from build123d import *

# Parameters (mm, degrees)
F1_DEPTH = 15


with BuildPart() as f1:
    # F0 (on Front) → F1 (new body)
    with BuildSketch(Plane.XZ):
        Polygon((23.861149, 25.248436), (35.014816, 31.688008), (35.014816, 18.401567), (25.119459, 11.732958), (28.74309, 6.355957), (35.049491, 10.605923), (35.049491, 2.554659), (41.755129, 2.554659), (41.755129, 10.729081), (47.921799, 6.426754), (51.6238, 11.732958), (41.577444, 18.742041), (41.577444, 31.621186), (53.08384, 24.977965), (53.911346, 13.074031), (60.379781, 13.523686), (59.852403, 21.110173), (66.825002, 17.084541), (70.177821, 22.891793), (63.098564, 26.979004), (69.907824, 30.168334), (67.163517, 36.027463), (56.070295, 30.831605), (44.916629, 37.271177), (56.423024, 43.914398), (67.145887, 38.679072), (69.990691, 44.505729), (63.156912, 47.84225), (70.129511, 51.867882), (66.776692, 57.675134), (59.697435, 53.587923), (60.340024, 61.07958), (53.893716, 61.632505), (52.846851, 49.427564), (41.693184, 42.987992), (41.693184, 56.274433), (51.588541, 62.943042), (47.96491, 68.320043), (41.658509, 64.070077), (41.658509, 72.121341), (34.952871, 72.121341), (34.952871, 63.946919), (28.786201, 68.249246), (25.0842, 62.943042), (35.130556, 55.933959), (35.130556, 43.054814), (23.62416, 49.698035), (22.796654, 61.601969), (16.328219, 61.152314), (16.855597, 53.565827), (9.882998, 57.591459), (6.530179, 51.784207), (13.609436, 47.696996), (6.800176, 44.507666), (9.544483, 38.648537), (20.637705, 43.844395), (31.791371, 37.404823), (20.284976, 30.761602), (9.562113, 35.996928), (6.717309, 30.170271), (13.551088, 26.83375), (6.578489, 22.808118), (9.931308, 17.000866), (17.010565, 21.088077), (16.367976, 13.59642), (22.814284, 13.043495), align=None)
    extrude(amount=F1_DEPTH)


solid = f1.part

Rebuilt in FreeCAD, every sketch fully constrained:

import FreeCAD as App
import Part
import Sketcher

V = App.Vector
Q = App.Units.Quantity

doc = App.newDocument("Part")
body = doc.addObject("PartDesign::Body", "Body")

# Sketch on XZ plane
sketch1 = body.newObject("Sketcher::SketchObject", "Sketch")
sketch1.AttachmentSupport = (doc.getObject("XZ_Plane"), [""])
sketch1.MapMode = "FlatFace"
sketch1.addGeometry([
    Part.LineSegment(V(24, 25, 0), V(35, 32, 0)),  # 0
    Part.LineSegment(V(35, 32, 0), V(35, 18, 0)),  # 1
    Part.LineSegment(V(35, 18, 0), V(25, 12, 0)),  # 2
    Part.LineSegment(V(25, 12, 0), V(29, 6, 0)),  # 3
    Part.LineSegment(V(29, 6, 0), V(35, 11, 0)),  # 4
    Part.LineSegment(V(35, 11, 0), V(35, 3, 0)),  # 5
    Part.LineSegment(V(35, 3, 0), V(42, 3, 0)),  # 6
    Part.LineSegment(V(42, 3, 0), V(42, 11, 0)),  # 7
    Part.LineSegment(V(42, 11, 0), V(48, 6, 0)),  # 8
    Part.LineSegment(V(48, 6, 0), V(52, 12, 0)),  # 9
    Part.LineSegment(V(52, 12, 0), V(42, 19, 0)),  # 10
    Part.LineSegment(V(42, 19, 0), V(42, 32, 0)),  # 11
    Part.LineSegment(V(42, 32, 0), V(53, 25, 0)),  # 12
    Part.LineSegment(V(53, 25, 0), V(54, 13, 0)),  # 13
    Part.LineSegment(V(54, 13, 0), V(60, 14, 0)),  # 14
    Part.LineSegment(V(60, 14, 0), V(60, 21, 0)),  # 15
    Part.LineSegment(V(60, 21, 0), V(67, 17, 0)),  # 16
    Part.LineSegment(V(67, 17, 0), V(70, 23, 0)),  # 17
    Part.LineSegment(V(70, 23, 0), V(63, 27, 0)),  # 18
    Part.LineSegment(V(63, 27, 0), V(70, 30, 0)),  # 19
    Part.LineSegment(V(70, 30, 0), V(67, 36, 0)),  # 20
    Part.LineSegment(V(67, 36, 0), V(56, 31, 0)),  # 21
    Part.LineSegment(V(56, 31, 0), V(45, 37, 0)),  # 22
    Part.LineSegment(V(45, 37, 0), V(56, 44, 0)),  # 23
    Part.LineSegment(V(56, 44, 0), V(67, 39, 0)),  # 24
    Part.LineSegment(V(67, 39, 0), V(70, 45, 0)),  # 25
    Part.LineSegment(V(70, 45, 0), V(63, 48, 0)),  # 26
    Part.LineSegment(V(63, 48, 0), V(70, 52, 0)),  # 27
    Part.LineSegment(V(70, 52, 0), V(67, 58, 0)),  # 28
    Part.LineSegment(V(67, 58, 0), V(60, 54, 0)),  # 29
    Part.LineSegment(V(60, 54, 0), V(60, 61, 0)),  # 30
    Part.LineSegment(V(60, 61, 0), V(54, 62, 0)),  # 31
    Part.LineSegment(V(54, 62, 0), V(53, 49, 0)),  # 32
    Part.LineSegment(V(53, 49, 0), V(42, 43, 0)),  # 33
    Part.LineSegment(V(42, 43, 0), V(42, 56, 0)),  # 34
    Part.LineSegment(V(42, 56, 0), V(52, 63, 0)),  # 35
    Part.LineSegment(V(52, 63, 0), V(48, 68, 0)),  # 36
    Part.LineSegment(V(48, 68, 0), V(42, 64, 0)),  # 37
    Part.LineSegment(V(42, 64, 0), V(42, 72, 0)),  # 38
    Part.LineSegment(V(42, 72, 0), V(35, 72, 0)),  # 39
    Part.LineSegment(V(35, 72, 0), V(35, 64, 0)),  # 40
    Part.LineSegment(V(35, 64, 0), V(29, 68, 0)),  # 41
    Part.LineSegment(V(29, 68, 0), V(25, 63, 0)),  # 42
    Part.LineSegment(V(25, 63, 0), V(35, 56, 0)),  # 43
    Part.LineSegment(V(35, 56, 0), V(35, 43, 0)),  # 44
    Part.LineSegment(V(35, 43, 0), V(24, 50, 0)),  # 45
    Part.LineSegment(V(24, 50, 0), V(23, 62, 0)),  # 46
    Part.LineSegment(V(23, 62, 0), V(16, 61, 0)),  # 47
    Part.LineSegment(V(16, 61, 0), V(17, 54, 0)),  # 48
    Part.LineSegment(V(17, 54, 0), V(10, 58, 0)),  # 49
    Part.LineSegment(V(10, 58, 0), V(7, 52, 0)),  # 50
    Part.LineSegment(V(7, 52, 0), V(14, 48, 0)),  # 51
    Part.LineSegment(V(14, 48, 0), V(7, 45, 0)),  # 52
    Part.LineSegment(V(7, 45, 0), V(10, 39, 0)),  # 53
    Part.LineSegment(V(10, 39, 0), V(21, 44, 0)),  # 54
    Part.LineSegment(V(21, 44, 0), V(32, 37, 0)),  # 55
    Part.LineSegment(V(32, 37, 0), V(20, 31, 0)),  # 56
    Part.LineSegment(V(20, 31, 0), V(10, 36, 0)),  # 57
    Part.LineSegment(V(10, 36, 0), V(7, 30, 0)),  # 58
    Part.LineSegment(V(7, 30, 0), V(14, 27, 0)),  # 59
    Part.LineSegment(V(14, 27, 0), V(7, 23, 0)),  # 60
    Part.LineSegment(V(7, 23, 0), V(10, 17, 0)),  # 61
    Part.LineSegment(V(10, 17, 0), V(17, 21, 0)),  # 62
    Part.LineSegment(V(17, 21, 0), V(16, 14, 0)),  # 63
    Part.LineSegment(V(16, 14, 0), V(23, 13, 0)),  # 64
    Part.LineSegment(V(23, 13, 0), V(24, 25, 0)),  # 65
], False)
sketch1.addConstraint([
    Sketcher.Constraint("Coincident", 0, 2, 1, 1),
    Sketcher.Constraint("Coincident", 1, 2, 2, 1),
    Sketcher.Constraint("Coincident", 2, 2, 3, 1),
    Sketcher.Constraint("Coincident", 3, 2, 4, 1),
    Sketcher.Constraint("Coincident", 4, 2, 5, 1),
    Sketcher.Constraint("Coincident", 5, 2, 6, 1),
    Sketcher.Constraint("Coincident", 6, 2, 7, 1),
    Sketcher.Constraint("Coincident", 7, 2, 8, 1),
    Sketcher.Constraint("Coincident", 8, 2, 9, 1),
    Sketcher.Constraint("Coincident", 9, 2, 10, 1),
    Sketcher.Constraint("Coincident", 10, 2, 11, 1),
    Sketcher.Constraint("Coincident", 11, 2, 12, 1),
    Sketcher.Constraint("Coincident", 12, 2, 13, 1),
    Sketcher.Constraint("Coincident", 13, 2, 14, 1),
    Sketcher.Constraint("Coincident", 14, 2, 15, 1),
    Sketcher.Constraint("Coincident", 15, 2, 16, 1),
    Sketcher.Constraint("Coincident", 16, 2, 17, 1),
    Sketcher.Constraint("Coincident", 17, 2, 18, 1),
    Sketcher.Constraint("Coincident", 18, 2, 19, 1),
    Sketcher.Constraint("Coincident", 19, 2, 20, 1),
    Sketcher.Constraint("Coincident", 20, 2, 21, 1),
    Sketcher.Constraint("Coincident", 21, 2, 22, 1),
    Sketcher.Constraint("Coincident", 22, 2, 23, 1),
    Sketcher.Constraint("Coincident", 23, 2, 24, 1),
    Sketcher.Constraint("Coincident", 24, 2, 25, 1),
    Sketcher.Constraint("Coincident", 25, 2, 26, 1),
    Sketcher.Constraint("Coincident", 26, 2, 27, 1),
    Sketcher.Constraint("Coincident", 27, 2, 28, 1),
    Sketcher.Constraint("Coincident", 28, 2, 29, 1),
    Sketcher.Constraint("Coincident", 29, 2, 30, 1),
    Sketcher.Constraint("Coincident", 30, 2, 31, 1),
    Sketcher.Constraint("Coincident", 31, 2, 32, 1),
    Sketcher.Constraint("Coincident", 32, 2, 33, 1),
    Sketcher.Constraint("Coincident", 33, 2, 34, 1),
    Sketcher.Constraint("Coincident", 34, 2, 35, 1),
    Sketcher.Constraint("Coincident", 35, 2, 36, 1),
    Sketcher.Constraint("Coincident", 36, 2, 37, 1),
    Sketcher.Constraint("Coincident", 37, 2, 38, 1),
    Sketcher.Constraint("Coincident", 38, 2, 39, 1),
    Sketcher.Constraint("Coincident", 39, 2, 40, 1),
    Sketcher.Constraint("Coincident", 40, 2, 41, 1),
    Sketcher.Constraint("Coincident", 41, 2, 42, 1),
    Sketcher.Constraint("Coincident", 42, 2, 43, 1),
    Sketcher.Constraint("Coincident", 43, 2, 44, 1),
    Sketcher.Constraint("Coincident", 44, 2, 45, 1),
    Sketcher.Constraint("Coincident", 45, 2, 46, 1),
    Sketcher.Constraint("Coincident", 46, 2, 47, 1),
    Sketcher.Constraint("Coincident", 47, 2, 48, 1),
    Sketcher.Constraint("Coincident", 48, 2, 49, 1),
    Sketcher.Constraint("Coincident", 49, 2, 50, 1),
    Sketcher.Constraint("Coincident", 50, 2, 51, 1),
    Sketcher.Constraint("Coincident", 51, 2, 52, 1),
    Sketcher.Constraint("Coincident", 52, 2, 53, 1),
    Sketcher.Constraint("Coincident", 53, 2, 54, 1),
    Sketcher.Constraint("Coincident", 54, 2, 55, 1),
    Sketcher.Constraint("Coincident", 55, 2, 56, 1),
    Sketcher.Constraint("Coincident", 56, 2, 57, 1),
    Sketcher.Constraint("Coincident", 57, 2, 58, 1),
    Sketcher.Constraint("Coincident", 58, 2, 59, 1),
    Sketcher.Constraint("Coincident", 59, 2, 60, 1),
    Sketcher.Constraint("Coincident", 60, 2, 61, 1),
    Sketcher.Constraint("Coincident", 61, 2, 62, 1),
    Sketcher.Constraint("Coincident", 62, 2, 63, 1),
    Sketcher.Constraint("Coincident", 63, 2, 64, 1),
    Sketcher.Constraint("Coincident", 64, 2, 65, 1),
    Sketcher.Constraint("Coincident", 65, 2, 0, 1),
    Sketcher.Constraint("Vertical", 1),
    Sketcher.Constraint("Vertical", 5),
    Sketcher.Constraint("Horizontal", 6),
    Sketcher.Constraint("Vertical", 7),
    Sketcher.Constraint("Vertical", 11),
    Sketcher.Constraint("Vertical", 34),
    Sketcher.Constraint("Vertical", 38),
    Sketcher.Constraint("Horizontal", 39),
    Sketcher.Constraint("Vertical", 40),
    Sketcher.Constraint("Vertical", 44),
    Sketcher.Constraint("Perpendicular", 2, 3),
    Sketcher.Constraint("Perpendicular", 3, 4),
    Sketcher.Constraint("Perpendicular", 8, 9),
    Sketcher.Constraint("Perpendicular", 9, 10),
    Sketcher.Constraint("Perpendicular", 13, 14),
    Sketcher.Constraint("Perpendicular", 14, 15),
    Sketcher.Constraint("Parallel", 12, 16),
    Sketcher.Constraint("Perpendicular", 16, 17),
    Sketcher.Constraint("Perpendicular", 17, 18),
    Sketcher.Constraint("Perpendicular", 19, 20),
    Sketcher.Constraint("Perpendicular", 20, 21),
    Sketcher.Constraint("Parallel", 18, 22),
    Sketcher.Constraint("Parallel", 0, 23),
    Sketcher.Constraint("Perpendicular", 24, 25),
    Sketcher.Constraint("Perpendicular", 25, 26),
    Sketcher.Constraint("Parallel", 23, 27),
    Sketcher.Constraint("Perpendicular", 27, 28),
    Sketcher.Constraint("Perpendicular", 28, 29),
    Sketcher.Constraint("Perpendicular", 30, 31),
    Sketcher.Constraint("Perpendicular", 31, 32),
    Sketcher.Constraint("Parallel", 29, 33),
    Sketcher.Constraint("Parallel", 4, 35),
    Sketcher.Constraint("Perpendicular", 35, 36),
    Sketcher.Constraint("Perpendicular", 36, 37),
    Sketcher.Constraint("Parallel", 10, 41),
    Sketcher.Constraint("Perpendicular", 41, 42),
    Sketcher.Constraint("Perpendicular", 42, 43),
    Sketcher.Constraint("Parallel", 22, 45),
    Sketcher.Constraint("Parallel", 15, 46),
    Sketcher.Constraint("Perpendicular", 46, 47),
    Sketcher.Constraint("Perpendicular", 47, 48),
    Sketcher.Constraint("Parallel", 45, 49),
    Sketcher.Constraint("Perpendicular", 49, 50),
    Sketcher.Constraint("Perpendicular", 50, 51),
    Sketcher.Constraint("Parallel", 21, 52),
    Sketcher.Constraint("Perpendicular", 52, 53),
    Sketcher.Constraint("Perpendicular", 53, 54),
    Sketcher.Constraint("Parallel", 51, 55),
    Sketcher.Constraint("Parallel", 33, 56),
    Sketcher.Constraint("Parallel", 26, 57),
    Sketcher.Constraint("Perpendicular", 57, 58),
    Sketcher.Constraint("Perpendicular", 58, 59),
    Sketcher.Constraint("Parallel", 56, 60),
    Sketcher.Constraint("Perpendicular", 60, 61),
    Sketcher.Constraint("Perpendicular", 61, 62),
    Sketcher.Constraint("Parallel", 32, 63),
    Sketcher.Constraint("Perpendicular", 63, 64),
    Sketcher.Constraint("Perpendicular", 64, 65),
    Sketcher.Constraint("Horizontal", 2, 2, 9, 2),
    Sketcher.Constraint("Horizontal", 35, 2, 42, 2),
    Sketcher.Constraint("Equal", 6, 39),
    Sketcher.Constraint("Equal", 1, 34),
    Sketcher.Constraint("Equal", 5, 38),
    Sketcher.Constraint("Equal", 7, 40),
    Sketcher.Constraint("Equal", 11, 44),
    Sketcher.Constraint("Equal", 2, 13),
    Sketcher.Constraint("Equal", 3, 14),
    Sketcher.Constraint("Equal", 4, 15),
    Sketcher.Constraint("Equal", 8, 19),
    Sketcher.Constraint("Equal", 9, 20),
    Sketcher.Constraint("Equal", 10, 21),
    Sketcher.Constraint("Equal", 0, 22),
    Sketcher.Constraint("Equal", 12, 23),
    Sketcher.Constraint("Equal", 13, 24),
    Sketcher.Constraint("Equal", 14, 25),
    Sketcher.Constraint("Equal", 15, 26),
    Sketcher.Constraint("Equal", 16, 27),
    Sketcher.Constraint("Equal", 17, 28),
    Sketcher.Constraint("Equal", 18, 29),
    Sketcher.Constraint("Equal", 19, 30),
    Sketcher.Constraint("Equal", 20, 31),
    Sketcher.Constraint("Equal", 21, 32),
    Sketcher.Constraint("Equal", 22, 33),
    Sketcher.Constraint("Equal", 24, 35),
    Sketcher.Constraint("Equal", 25, 36),
    Sketcher.Constraint("Equal", 26, 37),
    Sketcher.Constraint("Equal", 30, 41),
    Sketcher.Constraint("Equal", 32, 43),
    Sketcher.Constraint("Equal", 23, 45),
    Sketcher.Constraint("Equal", 35, 46),
    Sketcher.Constraint("Equal", 36, 47),
    Sketcher.Constraint("Equal", 37, 48),
    Sketcher.Constraint("Equal", 27, 49),
    Sketcher.Constraint("Equal", 28, 50),
    Sketcher.Constraint("Equal", 29, 51),
    Sketcher.Constraint("Equal", 41, 52),
    Sketcher.Constraint("Equal", 42, 53),
    Sketcher.Constraint("Equal", 43, 54),
    Sketcher.Constraint("Equal", 33, 55),
    Sketcher.Constraint("Equal", 45, 56),
    Sketcher.Constraint("Equal", 46, 57),
    Sketcher.Constraint("Equal", 47, 58),
    Sketcher.Constraint("Equal", 48, 59),
    Sketcher.Constraint("Equal", 49, 60),
    Sketcher.Constraint("Equal", 50, 61),
    Sketcher.Constraint("Equal", 51, 62),
    Sketcher.Constraint("Equal", 52, 63),
    Sketcher.Constraint("Angle", 0, Q("29.999998 deg")),
    Sketcher.Constraint("Angle", 12, Q("-30.000001 deg")),
    Sketcher.Constraint("DistanceX", -1, 1, 16, 2, Q("66.825002 mm")),
    Sketcher.Constraint("DistanceX", -1, 1, 49, 2, Q("9.882998 mm")),
    Sketcher.Constraint("DistanceX", 39, 2, 39, 1, Q("6.705638 mm")),
    Sketcher.Constraint("DistanceY", 1, 2, 1, 1, Q("13.286441 mm")),
    Sketcher.Constraint("DistanceX", -1, 1, 8, 2, Q("47.921799 mm")),
    Sketcher.Constraint("DistanceX", -1, 1, 9, 2, Q("51.6238 mm")),
    Sketcher.Constraint("DistanceY", -1, 1, 56, 2, Q("30.761602 mm")),
    Sketcher.Constraint("Distance", 12, Q("13.286442 mm")),
    Sketcher.Constraint("Distance", 13, Q("11.932662 mm")),
    Sketcher.Constraint("Distance", 18, Q("8.174422 mm")),
    Sketcher.Constraint("DistanceY", 5, 2, 5, 1, Q("8.051264 mm")),
    Sketcher.Constraint("DistanceY", 7, 1, 7, 2, Q("8.174422 mm")),
    Sketcher.Constraint("DistanceY", 11, 1, 11, 2, Q("12.879145 mm")),
    Sketcher.Constraint("DistanceY", -1, 1, 0, 2, Q("31.688008 mm")),
    Sketcher.Constraint("DistanceX", -1, 1, 2, 2, Q("25.119459 mm")),
    Sketcher.Constraint("DistanceX", -1, 1, 3, 2, Q("28.74309 mm")),
    Sketcher.Constraint("DistanceX", -1, 1, 4, 2, Q("35.049491 mm")),
    Sketcher.Constraint("DistanceY", -1, 1, 5, 2, Q("2.554659 mm")),
    Sketcher.Constraint("DistanceY", -1, 1, 10, 2, Q("18.742041 mm")),
    Sketcher.Constraint("DistanceY", -1, 1, 13, 2, Q("13.074031 mm")),
    Sketcher.Constraint("DistanceX", -1, 1, 17, 2, Q("70.177821 mm")),
    Sketcher.Constraint("DistanceX", -1, 1, 22, 2, Q("44.916629 mm")),
    Sketcher.Constraint("DistanceY", -1, 1, 24, 2, Q("38.679072 mm")),
])
pad1 = body.newObject("PartDesign::Pad", "Pad")
pad1.Profile = sketch1
pad1.Length = 15

doc.recompute()
